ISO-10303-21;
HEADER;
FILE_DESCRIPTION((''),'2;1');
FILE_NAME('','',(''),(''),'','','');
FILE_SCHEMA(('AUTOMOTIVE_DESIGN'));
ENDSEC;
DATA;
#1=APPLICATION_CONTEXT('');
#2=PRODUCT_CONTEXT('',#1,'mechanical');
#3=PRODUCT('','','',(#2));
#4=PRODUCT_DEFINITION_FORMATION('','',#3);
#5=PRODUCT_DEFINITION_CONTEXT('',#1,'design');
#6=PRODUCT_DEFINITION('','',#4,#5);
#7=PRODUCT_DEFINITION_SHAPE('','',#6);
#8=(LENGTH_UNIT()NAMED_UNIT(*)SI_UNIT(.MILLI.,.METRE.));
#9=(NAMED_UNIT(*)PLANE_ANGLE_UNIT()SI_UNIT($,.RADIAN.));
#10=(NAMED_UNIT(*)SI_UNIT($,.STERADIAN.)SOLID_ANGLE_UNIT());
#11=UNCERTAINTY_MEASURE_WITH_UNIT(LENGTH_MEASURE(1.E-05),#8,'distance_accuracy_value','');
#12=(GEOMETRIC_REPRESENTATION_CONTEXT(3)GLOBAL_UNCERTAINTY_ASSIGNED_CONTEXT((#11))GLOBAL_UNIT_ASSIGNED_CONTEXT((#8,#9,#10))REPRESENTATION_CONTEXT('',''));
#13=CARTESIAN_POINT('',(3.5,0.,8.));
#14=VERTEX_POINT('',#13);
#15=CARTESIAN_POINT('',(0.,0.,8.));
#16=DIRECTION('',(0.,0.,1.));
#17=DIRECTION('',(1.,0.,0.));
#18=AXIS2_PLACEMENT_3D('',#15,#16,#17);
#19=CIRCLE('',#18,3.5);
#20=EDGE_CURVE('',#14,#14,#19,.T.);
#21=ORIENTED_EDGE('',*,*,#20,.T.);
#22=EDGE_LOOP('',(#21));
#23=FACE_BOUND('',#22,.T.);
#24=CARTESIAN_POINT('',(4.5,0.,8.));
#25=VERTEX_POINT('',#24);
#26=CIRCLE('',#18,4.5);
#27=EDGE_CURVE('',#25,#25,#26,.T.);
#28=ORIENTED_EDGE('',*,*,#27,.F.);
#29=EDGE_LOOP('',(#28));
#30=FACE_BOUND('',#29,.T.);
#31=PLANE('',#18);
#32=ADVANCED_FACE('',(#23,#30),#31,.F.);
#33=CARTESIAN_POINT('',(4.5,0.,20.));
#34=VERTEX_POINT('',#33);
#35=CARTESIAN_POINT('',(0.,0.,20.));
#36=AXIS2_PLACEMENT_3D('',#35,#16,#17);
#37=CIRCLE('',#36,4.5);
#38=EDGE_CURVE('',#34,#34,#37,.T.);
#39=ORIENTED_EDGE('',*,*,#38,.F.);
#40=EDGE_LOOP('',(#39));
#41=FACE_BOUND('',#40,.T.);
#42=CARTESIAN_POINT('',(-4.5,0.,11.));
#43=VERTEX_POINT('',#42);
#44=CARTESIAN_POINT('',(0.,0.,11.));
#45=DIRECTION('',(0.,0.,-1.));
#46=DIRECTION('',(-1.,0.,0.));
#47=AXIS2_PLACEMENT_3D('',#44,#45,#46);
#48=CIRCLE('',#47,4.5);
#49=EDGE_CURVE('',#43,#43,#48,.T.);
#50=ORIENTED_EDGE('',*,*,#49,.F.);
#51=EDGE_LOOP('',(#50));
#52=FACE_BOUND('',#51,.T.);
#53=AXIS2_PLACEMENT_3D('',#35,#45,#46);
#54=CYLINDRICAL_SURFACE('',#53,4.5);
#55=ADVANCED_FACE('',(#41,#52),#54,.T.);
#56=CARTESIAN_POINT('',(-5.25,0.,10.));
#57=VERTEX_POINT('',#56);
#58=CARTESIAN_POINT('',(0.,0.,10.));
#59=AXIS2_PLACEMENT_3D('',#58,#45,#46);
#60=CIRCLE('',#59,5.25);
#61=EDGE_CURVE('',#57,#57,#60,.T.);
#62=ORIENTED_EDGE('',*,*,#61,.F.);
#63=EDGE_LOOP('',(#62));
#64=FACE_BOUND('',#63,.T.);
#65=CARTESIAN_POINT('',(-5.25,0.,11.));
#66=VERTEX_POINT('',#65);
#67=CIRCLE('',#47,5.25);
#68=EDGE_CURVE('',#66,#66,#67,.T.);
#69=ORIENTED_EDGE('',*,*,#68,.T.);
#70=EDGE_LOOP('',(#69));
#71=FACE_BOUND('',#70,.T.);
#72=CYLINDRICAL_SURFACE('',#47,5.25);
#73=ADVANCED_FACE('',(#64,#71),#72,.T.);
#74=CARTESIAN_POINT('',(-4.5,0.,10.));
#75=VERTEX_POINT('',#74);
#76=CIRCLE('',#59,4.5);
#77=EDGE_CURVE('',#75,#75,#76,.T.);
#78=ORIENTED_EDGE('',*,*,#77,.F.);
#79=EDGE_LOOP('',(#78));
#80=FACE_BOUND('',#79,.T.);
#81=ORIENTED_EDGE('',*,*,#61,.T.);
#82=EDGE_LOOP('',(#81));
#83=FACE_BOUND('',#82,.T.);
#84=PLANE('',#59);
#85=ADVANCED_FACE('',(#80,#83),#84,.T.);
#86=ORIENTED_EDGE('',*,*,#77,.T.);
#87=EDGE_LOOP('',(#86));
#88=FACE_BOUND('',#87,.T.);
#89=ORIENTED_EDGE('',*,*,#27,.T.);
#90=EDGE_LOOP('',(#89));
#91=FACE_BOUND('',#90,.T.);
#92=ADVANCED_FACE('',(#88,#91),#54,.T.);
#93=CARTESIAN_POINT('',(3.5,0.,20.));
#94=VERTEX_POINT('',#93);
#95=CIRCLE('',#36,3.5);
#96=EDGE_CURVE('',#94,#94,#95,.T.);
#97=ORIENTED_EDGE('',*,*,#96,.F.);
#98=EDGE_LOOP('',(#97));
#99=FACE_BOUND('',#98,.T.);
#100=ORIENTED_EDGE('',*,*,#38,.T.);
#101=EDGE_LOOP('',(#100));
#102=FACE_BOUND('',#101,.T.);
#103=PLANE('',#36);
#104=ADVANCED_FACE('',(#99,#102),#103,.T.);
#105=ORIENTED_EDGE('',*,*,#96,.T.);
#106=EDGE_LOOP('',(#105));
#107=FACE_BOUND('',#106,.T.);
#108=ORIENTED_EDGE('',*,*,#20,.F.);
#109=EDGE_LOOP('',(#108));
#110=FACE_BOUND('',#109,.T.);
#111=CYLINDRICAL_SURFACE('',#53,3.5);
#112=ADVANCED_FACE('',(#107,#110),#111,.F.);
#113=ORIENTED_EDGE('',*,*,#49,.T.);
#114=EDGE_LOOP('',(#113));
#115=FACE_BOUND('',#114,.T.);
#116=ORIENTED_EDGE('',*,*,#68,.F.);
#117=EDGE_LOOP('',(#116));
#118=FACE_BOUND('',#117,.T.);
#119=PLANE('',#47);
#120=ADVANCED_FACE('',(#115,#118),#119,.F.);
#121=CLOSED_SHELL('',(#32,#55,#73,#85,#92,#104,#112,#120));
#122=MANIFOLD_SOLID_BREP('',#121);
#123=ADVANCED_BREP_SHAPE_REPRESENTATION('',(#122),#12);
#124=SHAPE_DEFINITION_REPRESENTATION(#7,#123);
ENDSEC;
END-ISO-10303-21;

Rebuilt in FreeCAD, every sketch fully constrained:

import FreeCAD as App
import Part
import Sketcher

V = App.Vector

doc = App.newDocument("Part")
params = doc.addObject("Spreadsheet::Sheet", "Params")
for row, (alias, value) in enumerate([
    ("sketch1_diameter", "9 mm"),
    ("sketch1_diameter2", "7 mm"),
    ("pad1_length", "12 mm"),
    ("sketch2_diameter", "7 mm"),
    ("sketch2_diameter2", "10.5 mm"),
    ("pad2_length", "1 mm"),
], start=1):
    params.set(f"A{row}", alias)
    params.set(f"B{row}", "=" + value)
    params.setAlias(f"B{row}", alias)

body = doc.addObject("PartDesign::Body", "Body")

sketch1 = body.newObject("Sketcher::SketchObject", "Sketch")
sketch1.AttachmentSupport = (doc.getObject("XY_Plane"), [""])
sketch1.MapMode = "FlatFace"
sketch1.AttachmentOffset = App.Placement(V(0, 0, 8), App.Rotation())
sketch1.addGeometry(Part.Circle(V(0, 0, 0), V(0, 0, 1), 4.5), False)
sketch1.addGeometry(Part.Circle(V(0, 0, 0), V(0, 0, 1), 3.5), False)
sketch1.addConstraint(Sketcher.Constraint("Coincident", 0, 3, -1, 1))
sketch1.addConstraint(Sketcher.Constraint("Coincident", 1, 3, -1, 1))
sketch1.addConstraint(Sketcher.Constraint("Diameter", 0, 9.0))
sketch1.addConstraint(Sketcher.Constraint("Diameter", 1, 7.0))
sketch1.setExpression("Constraints[2]", "Params.sketch1_diameter")
sketch1.setExpression("Constraints[3]", "Params.sketch1_diameter2")
pad1 = body.newObject("PartDesign::Pad", "Pad")
pad1.Profile = sketch1
pad1.setExpression("Length", "Params.pad1_length")

sketch2 = body.newObject("Sketcher::SketchObject", "Sketch001")
sketch2.AttachmentSupport = (doc.getObject("XY_Plane"), [""])
sketch2.MapMode = "FlatFace"
sketch2.AttachmentOffset = App.Placement(V(0, 0, 10), App.Rotation())
sketch2.addGeometry(Part.Circle(V(0, 0, 0), V(0, 0, 1), 5.2), False)
sketch2.addGeometry(Part.Circle(V(0, 0, 0), V(0, 0, 1), 3.5), False)
sketch2.addConstraint(Sketcher.Constraint("Coincident", 0, 3, -1, 1))
sketch2.addConstraint(Sketcher.Constraint("Coincident", 1, 3, -1, 1))
sketch2.addConstraint(Sketcher.Constraint("Diameter", 1, 7.0))
sketch2.addConstraint(Sketcher.Constraint("Diameter", 0, 10.5))
sketch2.setExpression("Constraints[2]", "Params.sketch2_diameter")
sketch2.setExpression("Constraints[3]", "Params.sketch2_diameter2")
pad2 = body.newObject("PartDesign::Pad", "Pad001")
pad2.Profile = sketch2
pad2.setExpression("Length", "Params.pad2_length")

doc.recompute()
